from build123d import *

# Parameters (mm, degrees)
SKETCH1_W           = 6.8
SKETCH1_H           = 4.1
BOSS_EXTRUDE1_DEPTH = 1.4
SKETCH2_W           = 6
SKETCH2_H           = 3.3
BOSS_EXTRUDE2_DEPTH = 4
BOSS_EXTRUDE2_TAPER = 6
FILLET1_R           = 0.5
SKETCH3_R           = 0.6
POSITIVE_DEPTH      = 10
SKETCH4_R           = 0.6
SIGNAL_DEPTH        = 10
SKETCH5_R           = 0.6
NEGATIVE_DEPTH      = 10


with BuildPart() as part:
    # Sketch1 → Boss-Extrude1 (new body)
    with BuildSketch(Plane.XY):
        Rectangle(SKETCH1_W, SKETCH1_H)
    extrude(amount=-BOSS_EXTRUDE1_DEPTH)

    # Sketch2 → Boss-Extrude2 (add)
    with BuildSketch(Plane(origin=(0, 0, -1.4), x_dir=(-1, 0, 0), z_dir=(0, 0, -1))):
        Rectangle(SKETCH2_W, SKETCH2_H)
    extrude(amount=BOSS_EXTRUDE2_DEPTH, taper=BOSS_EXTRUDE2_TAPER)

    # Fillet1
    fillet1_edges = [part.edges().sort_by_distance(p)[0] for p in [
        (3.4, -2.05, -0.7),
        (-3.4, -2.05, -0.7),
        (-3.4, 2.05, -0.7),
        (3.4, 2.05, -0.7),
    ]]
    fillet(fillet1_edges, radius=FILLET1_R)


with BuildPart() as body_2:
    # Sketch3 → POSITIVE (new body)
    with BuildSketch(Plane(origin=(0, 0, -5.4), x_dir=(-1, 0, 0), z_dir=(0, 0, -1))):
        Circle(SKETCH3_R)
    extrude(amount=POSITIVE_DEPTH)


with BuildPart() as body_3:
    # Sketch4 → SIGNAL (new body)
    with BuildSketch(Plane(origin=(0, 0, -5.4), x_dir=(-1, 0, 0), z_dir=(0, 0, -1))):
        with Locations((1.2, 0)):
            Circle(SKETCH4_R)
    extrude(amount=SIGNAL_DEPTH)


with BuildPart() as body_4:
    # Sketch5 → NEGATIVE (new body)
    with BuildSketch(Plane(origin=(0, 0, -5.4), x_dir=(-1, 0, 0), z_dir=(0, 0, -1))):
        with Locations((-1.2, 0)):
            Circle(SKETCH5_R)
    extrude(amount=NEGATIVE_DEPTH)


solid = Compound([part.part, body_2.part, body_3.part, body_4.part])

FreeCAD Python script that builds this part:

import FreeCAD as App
import Part
import Sketcher
from FreeCAD import Vector
Q = App.Units.Quantity


def edges_at(feature, points):
    """Names of the edges that pass closest to the given points."""
    edges = feature.Shape.Edges
    near = lambda p: min(range(len(edges)), key=lambda i: edges[i].distToShape(Part.Vertex(*p))[0])
    return sorted({f"Edge{near(p) + 1}" for p in points})


def add_polygon(sketch, points):
    """Adds a closed chain of lines whose ends are joined by coincident constraints."""
    first, n = sketch.GeometryCount, len(points)
    for a, b in zip(points, points[1:] + points[:1]):
        sketch.addGeometry(Part.LineSegment(App.Vector(*a, 0), App.Vector(*b, 0)), False)
    for i in range(n):
        sketch.addConstraint(Sketcher.Constraint("Coincident", first + i, 2, first + (i + 1) % n, 1))

doc = App.newDocument("Part")
body = doc.addObject("PartDesign::Body", "Body")

# Sketch on XY plane
sketch1 = body.newObject("Sketcher::SketchObject", "Sketch")
sketch1.AttachmentSupport = (doc.getObject("XY_Plane"), [""])
sketch1.MapMode = "FlatFace"
add_polygon(sketch1, [(-3.4, 2.05), (-3.4, -2.05), (3.4, -2.05), (3.4, 2.05)])  # lines 0-3
sketch1.addConstraint([
    Sketcher.Constraint("Vertical", 0),
    Sketcher.Constraint("Horizontal", 1),
    Sketcher.Constraint("Vertical", 2),
    Sketcher.Constraint("Horizontal", 3),
    Sketcher.Constraint("Symmetric", 0, 2, 2, 2, -1, 1),
    Sketcher.Constraint("DistanceX", 1, 1, 1, 2, Q("6.8 mm")),
    Sketcher.Constraint("DistanceY", 0, 2, 0, 1, Q("4.1 mm")),
])
pad1 = body.newObject("PartDesign::Pad", "Pad")
pad1.Profile = sketch1
pad1.Length = 1.4
pad1.Reversed = True

# Sketch on XY plane
sketch2 = body.newObject("Sketcher::SketchObject", "Sketch001")
sketch2.AttachmentSupport = (doc.getObject("XY_Plane"), [""])
sketch2.MapMode = "FlatFace"
sketch2.AttachmentOffset = App.Placement(Vector(0, 0, -1.4), App.Rotation())
add_polygon(sketch2, [(3, 1.65), (3, -1.65), (-3, -1.65), (-3, 1.65)])  # lines 0-3
sketch2.addConstraint([
    Sketcher.Constraint("Vertical", 0),
    Sketcher.Constraint("Horizontal", 1),
    Sketcher.Constraint("Vertical", 2),
    Sketcher.Constraint("Horizontal", 3),
    Sketcher.Constraint("Symmetric", 0, 2, 2, 2, -1, 1),
    Sketcher.Constraint("DistanceX", 1, 2, 1, 1, Q("6 mm")),
    Sketcher.Constraint("DistanceY", 0, 2, 0, 1, Q("3.3 mm")),
])
pad2 = body.newObject("PartDesign::Pad", "Pad001")
pad2.Profile = sketch2
pad2.Length = 4
pad2.Reversed = True
pad2.TaperAngle = -6
doc.recompute()

fillet = body.newObject("PartDesign::Fillet", "Fillet")
fillet.Base = (pad2, edges_at(pad2, [
    (3.4, -2.05, -0.7),
    (-3.4, -2.05, -0.7),
    (-3.4, 2.05, -0.7),
    (3.4, 2.05, -0.7),
]))
fillet.Radius = 0.5
body2 = doc.addObject("PartDesign::Body", "Body001")

# Sketch on XY plane
sketch3 = body2.newObject("Sketcher::SketchObject", "Sketch002")
sketch3.AttachmentSupport = (doc.getObject("XY_Plane001"), [""])
sketch3.MapMode = "FlatFace"
sketch3.AttachmentOffset = App.Placement(Vector(0, 0, -5.4), App.Rotation())
sketch3.addGeometry(Part.Circle(Vector(0, 0, 0), Vector(0, 0, 1), 0.6), False)
sketch3.addConstraint([
    Sketcher.Constraint("Coincident", 0, 3, -1, 1),
    Sketcher.Constraint("Diameter", 0, Q("1.2 mm")),
])
pad3 = body2.newObject("PartDesign::Pad", "Pad002")
pad3.Profile = sketch3
pad3.Length = 10
pad3.Reversed = True
body3 = doc.addObject("PartDesign::Body", "Body002")

# Sketch on XY plane
sketch4 = body3.newObject("Sketcher::SketchObject", "Sketch003")
sketch4.AttachmentSupport = (doc.getObject("XY_Plane002"), [""])
sketch4.MapMode = "FlatFace"
sketch4.AttachmentOffset = App.Placement(Vector(0, 0, -5.4), App.Rotation())
sketch4.addGeometry(Part.Circle(Vector(-1.2, 0, 0), Vector(0, 0, 1), 0.6), False)
sketch4.addConstraint([
    Sketcher.Constraint("PointOnObject", 0, 3, -1),
    Sketcher.Constraint("Diameter", 0, Q("1.2 mm")),
    Sketcher.Constraint("DistanceX", 0, 3, -1, 1, Q("1.2 mm")),
])
pad4 = body3.newObject("PartDesign::Pad", "Pad003")
pad4.Profile = sketch4
pad4.Length = 10
pad4.Reversed = True
body4 = doc.addObject("PartDesign::Body", "Body003")

# Sketch on XY plane
sketch5 = body4.newObject("Sketcher::SketchObject", "Sketch004")
sketch5.AttachmentSupport = (doc.getObject("XY_Plane003"), [""])
sketch5.MapMode = "FlatFace"
sketch5.AttachmentOffset = App.Placement(Vector(0, 0, -5.4), App.Rotation())
sketch5.addGeometry(Part.Circle(Vector(1.2, 0, 0), Vector(0, 0, 1), 0.6), False)
sketch5.addConstraint([
    Sketcher.Constraint("PointOnObject", 0, 3, -1),
    Sketcher.Constraint("Diameter", 0, Q("1.2 mm")),
    Sketcher.Constraint("DistanceX", -1, 1, 0, 3, Q("1.2 mm")),
])
pad5 = body4.newObject("PartDesign::Pad", "Pad004")
pad5.Profile = sketch5
pad5.Length = 10
pad5.Reversed = True

doc.recompute()
